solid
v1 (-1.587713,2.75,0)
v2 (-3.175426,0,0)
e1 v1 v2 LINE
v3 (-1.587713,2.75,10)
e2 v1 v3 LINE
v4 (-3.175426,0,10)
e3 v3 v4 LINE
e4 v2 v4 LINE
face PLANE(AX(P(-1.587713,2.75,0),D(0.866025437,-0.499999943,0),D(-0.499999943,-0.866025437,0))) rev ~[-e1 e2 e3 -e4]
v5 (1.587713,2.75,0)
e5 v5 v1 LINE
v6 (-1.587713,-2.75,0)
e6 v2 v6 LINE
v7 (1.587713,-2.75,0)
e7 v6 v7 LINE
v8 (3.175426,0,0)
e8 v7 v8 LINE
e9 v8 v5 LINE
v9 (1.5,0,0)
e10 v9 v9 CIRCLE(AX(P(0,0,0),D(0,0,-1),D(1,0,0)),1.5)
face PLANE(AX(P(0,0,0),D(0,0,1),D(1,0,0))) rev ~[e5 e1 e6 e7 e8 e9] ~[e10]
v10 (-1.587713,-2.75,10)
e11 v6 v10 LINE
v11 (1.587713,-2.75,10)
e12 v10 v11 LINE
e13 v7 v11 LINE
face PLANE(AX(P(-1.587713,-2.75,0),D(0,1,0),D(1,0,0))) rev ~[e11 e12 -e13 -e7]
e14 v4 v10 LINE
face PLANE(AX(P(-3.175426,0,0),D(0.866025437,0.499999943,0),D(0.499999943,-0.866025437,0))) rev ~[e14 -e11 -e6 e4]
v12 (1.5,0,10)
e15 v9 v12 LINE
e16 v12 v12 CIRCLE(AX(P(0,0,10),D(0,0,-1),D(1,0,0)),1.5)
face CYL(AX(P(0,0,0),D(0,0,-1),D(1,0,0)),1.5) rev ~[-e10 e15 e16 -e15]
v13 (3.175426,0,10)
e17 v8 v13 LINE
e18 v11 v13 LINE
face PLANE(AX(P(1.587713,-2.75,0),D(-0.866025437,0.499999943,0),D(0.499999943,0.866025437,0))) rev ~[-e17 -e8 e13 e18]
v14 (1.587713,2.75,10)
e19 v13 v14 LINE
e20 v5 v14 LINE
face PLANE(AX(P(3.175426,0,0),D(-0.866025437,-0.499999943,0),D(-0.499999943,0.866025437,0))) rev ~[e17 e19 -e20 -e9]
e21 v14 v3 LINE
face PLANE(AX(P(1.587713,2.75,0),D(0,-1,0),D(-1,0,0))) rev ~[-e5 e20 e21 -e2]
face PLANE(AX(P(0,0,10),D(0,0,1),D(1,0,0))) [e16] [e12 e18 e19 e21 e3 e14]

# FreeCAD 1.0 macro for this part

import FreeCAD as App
import Part
import Sketcher

V = App.Vector
Q = App.Units.Quantity

doc = App.newDocument("Part")
body = doc.addObject("PartDesign::Body", "Body")

# Sketch on XY plane
sketch1 = body.newObject("Sketcher::SketchObject", "Sketch")
sketch1.AttachmentSupport = (doc.getObject("XY_Plane"), [""])
sketch1.MapMode = "FlatFace"
sketch1.addGeometry(Part.LineSegment(V(1.6, -2.8, 0), V(3.2, 0, 0)), False)
sketch1.addGeometry(Part.LineSegment(V(3.2, 0, 0), V(1.6, 2.8, 0)), False)
sketch1.addGeometry(Part.LineSegment(V(1.6, 2.8, 0), V(-1.6, 2.8, 0)), False)
sketch1.addGeometry(Part.LineSegment(V(-1.6, 2.8, 0), V(-3.2, 0, 0)), False)
sketch1.addGeometry(Part.LineSegment(V(-3.2, 0, 0), V(-1.6, -2.8, 0)), False)
sketch1.addGeometry(Part.LineSegment(V(-1.6, -2.8, 0), V(1.6, -2.8, 0)), False)
sketch1.addConstraint(Sketcher.Constraint("Coincident", 0, 2, 1, 1))
sketch1.addConstraint(Sketcher.Constraint("Coincident", 1, 2, 2, 1))
sketch1.addConstraint(Sketcher.Constraint("Coincident", 2, 2, 3, 1))
sketch1.addConstraint(Sketcher.Constraint("Coincident", 3, 2, 4, 1))
sketch1.addConstraint(Sketcher.Constraint("Coincident", 4, 2, 5, 1))
sketch1.addConstraint(Sketcher.Constraint("Coincident", 5, 2, 0, 1))
sketch1.addConstraint(Sketcher.Constraint("Horizontal", 2))
sketch1.addConstraint(Sketcher.Constraint("Horizontal", 5))
sketch1.addConstraint(Sketcher.Constraint("Symmetric", 0, 2, 3, 2, -1, 1))
sketch1.addConstraint(Sketcher.Constraint("Symmetric", 1, 2, 4, 2, -1, 1))
sketch1.addConstraint(Sketcher.Constraint("PointOnObject", 0, 2, -1))
sketch1.addConstraint(Sketcher.Constraint("Parallel", 0, 3))
sketch1.addConstraint(Sketcher.Constraint("Vertical", 2, 2, 4, 2))
sketch1.addConstraint(Sketcher.Constraint("Angle", 0, Q("60.000004 deg")))
sketch1.addConstraint(Sketcher.Constraint("DistanceY", 4, 2, 2, 2, Q("5.5 mm")))
sketch1.addConstraint(Sketcher.Constraint("DistanceX", 2, 2, 2, 1, Q("3.175426 mm")))
pad1 = body.newObject("PartDesign::Pad", "Pad")
pad1.Profile = sketch1
pad1.Length = 10

# Sketch on XY plane
sketch2 = body.newObject("Sketcher::SketchObject", "Sketch001")
sketch2.AttachmentSupport = (doc.getObject("XY_Plane"), [""])
sketch2.MapMode = "FlatFace"
sketch2.addGeometry(Part.Circle(V(0, 0, 0), V(0, 0, 1), 1.5), False)
sketch2.addConstraint(Sketcher.Constraint("Coincident", 0, 3, -1, 1))
sketch2.addConstraint(Sketcher.Constraint("Diameter", 0, Q("3 mm")))
pocket1 = body.newObject("PartDesign::Pocket", "Pocket")
pocket1.Profile = sketch2
pocket1.Length = 10
pocket1.Reversed = True

doc.recompute()
